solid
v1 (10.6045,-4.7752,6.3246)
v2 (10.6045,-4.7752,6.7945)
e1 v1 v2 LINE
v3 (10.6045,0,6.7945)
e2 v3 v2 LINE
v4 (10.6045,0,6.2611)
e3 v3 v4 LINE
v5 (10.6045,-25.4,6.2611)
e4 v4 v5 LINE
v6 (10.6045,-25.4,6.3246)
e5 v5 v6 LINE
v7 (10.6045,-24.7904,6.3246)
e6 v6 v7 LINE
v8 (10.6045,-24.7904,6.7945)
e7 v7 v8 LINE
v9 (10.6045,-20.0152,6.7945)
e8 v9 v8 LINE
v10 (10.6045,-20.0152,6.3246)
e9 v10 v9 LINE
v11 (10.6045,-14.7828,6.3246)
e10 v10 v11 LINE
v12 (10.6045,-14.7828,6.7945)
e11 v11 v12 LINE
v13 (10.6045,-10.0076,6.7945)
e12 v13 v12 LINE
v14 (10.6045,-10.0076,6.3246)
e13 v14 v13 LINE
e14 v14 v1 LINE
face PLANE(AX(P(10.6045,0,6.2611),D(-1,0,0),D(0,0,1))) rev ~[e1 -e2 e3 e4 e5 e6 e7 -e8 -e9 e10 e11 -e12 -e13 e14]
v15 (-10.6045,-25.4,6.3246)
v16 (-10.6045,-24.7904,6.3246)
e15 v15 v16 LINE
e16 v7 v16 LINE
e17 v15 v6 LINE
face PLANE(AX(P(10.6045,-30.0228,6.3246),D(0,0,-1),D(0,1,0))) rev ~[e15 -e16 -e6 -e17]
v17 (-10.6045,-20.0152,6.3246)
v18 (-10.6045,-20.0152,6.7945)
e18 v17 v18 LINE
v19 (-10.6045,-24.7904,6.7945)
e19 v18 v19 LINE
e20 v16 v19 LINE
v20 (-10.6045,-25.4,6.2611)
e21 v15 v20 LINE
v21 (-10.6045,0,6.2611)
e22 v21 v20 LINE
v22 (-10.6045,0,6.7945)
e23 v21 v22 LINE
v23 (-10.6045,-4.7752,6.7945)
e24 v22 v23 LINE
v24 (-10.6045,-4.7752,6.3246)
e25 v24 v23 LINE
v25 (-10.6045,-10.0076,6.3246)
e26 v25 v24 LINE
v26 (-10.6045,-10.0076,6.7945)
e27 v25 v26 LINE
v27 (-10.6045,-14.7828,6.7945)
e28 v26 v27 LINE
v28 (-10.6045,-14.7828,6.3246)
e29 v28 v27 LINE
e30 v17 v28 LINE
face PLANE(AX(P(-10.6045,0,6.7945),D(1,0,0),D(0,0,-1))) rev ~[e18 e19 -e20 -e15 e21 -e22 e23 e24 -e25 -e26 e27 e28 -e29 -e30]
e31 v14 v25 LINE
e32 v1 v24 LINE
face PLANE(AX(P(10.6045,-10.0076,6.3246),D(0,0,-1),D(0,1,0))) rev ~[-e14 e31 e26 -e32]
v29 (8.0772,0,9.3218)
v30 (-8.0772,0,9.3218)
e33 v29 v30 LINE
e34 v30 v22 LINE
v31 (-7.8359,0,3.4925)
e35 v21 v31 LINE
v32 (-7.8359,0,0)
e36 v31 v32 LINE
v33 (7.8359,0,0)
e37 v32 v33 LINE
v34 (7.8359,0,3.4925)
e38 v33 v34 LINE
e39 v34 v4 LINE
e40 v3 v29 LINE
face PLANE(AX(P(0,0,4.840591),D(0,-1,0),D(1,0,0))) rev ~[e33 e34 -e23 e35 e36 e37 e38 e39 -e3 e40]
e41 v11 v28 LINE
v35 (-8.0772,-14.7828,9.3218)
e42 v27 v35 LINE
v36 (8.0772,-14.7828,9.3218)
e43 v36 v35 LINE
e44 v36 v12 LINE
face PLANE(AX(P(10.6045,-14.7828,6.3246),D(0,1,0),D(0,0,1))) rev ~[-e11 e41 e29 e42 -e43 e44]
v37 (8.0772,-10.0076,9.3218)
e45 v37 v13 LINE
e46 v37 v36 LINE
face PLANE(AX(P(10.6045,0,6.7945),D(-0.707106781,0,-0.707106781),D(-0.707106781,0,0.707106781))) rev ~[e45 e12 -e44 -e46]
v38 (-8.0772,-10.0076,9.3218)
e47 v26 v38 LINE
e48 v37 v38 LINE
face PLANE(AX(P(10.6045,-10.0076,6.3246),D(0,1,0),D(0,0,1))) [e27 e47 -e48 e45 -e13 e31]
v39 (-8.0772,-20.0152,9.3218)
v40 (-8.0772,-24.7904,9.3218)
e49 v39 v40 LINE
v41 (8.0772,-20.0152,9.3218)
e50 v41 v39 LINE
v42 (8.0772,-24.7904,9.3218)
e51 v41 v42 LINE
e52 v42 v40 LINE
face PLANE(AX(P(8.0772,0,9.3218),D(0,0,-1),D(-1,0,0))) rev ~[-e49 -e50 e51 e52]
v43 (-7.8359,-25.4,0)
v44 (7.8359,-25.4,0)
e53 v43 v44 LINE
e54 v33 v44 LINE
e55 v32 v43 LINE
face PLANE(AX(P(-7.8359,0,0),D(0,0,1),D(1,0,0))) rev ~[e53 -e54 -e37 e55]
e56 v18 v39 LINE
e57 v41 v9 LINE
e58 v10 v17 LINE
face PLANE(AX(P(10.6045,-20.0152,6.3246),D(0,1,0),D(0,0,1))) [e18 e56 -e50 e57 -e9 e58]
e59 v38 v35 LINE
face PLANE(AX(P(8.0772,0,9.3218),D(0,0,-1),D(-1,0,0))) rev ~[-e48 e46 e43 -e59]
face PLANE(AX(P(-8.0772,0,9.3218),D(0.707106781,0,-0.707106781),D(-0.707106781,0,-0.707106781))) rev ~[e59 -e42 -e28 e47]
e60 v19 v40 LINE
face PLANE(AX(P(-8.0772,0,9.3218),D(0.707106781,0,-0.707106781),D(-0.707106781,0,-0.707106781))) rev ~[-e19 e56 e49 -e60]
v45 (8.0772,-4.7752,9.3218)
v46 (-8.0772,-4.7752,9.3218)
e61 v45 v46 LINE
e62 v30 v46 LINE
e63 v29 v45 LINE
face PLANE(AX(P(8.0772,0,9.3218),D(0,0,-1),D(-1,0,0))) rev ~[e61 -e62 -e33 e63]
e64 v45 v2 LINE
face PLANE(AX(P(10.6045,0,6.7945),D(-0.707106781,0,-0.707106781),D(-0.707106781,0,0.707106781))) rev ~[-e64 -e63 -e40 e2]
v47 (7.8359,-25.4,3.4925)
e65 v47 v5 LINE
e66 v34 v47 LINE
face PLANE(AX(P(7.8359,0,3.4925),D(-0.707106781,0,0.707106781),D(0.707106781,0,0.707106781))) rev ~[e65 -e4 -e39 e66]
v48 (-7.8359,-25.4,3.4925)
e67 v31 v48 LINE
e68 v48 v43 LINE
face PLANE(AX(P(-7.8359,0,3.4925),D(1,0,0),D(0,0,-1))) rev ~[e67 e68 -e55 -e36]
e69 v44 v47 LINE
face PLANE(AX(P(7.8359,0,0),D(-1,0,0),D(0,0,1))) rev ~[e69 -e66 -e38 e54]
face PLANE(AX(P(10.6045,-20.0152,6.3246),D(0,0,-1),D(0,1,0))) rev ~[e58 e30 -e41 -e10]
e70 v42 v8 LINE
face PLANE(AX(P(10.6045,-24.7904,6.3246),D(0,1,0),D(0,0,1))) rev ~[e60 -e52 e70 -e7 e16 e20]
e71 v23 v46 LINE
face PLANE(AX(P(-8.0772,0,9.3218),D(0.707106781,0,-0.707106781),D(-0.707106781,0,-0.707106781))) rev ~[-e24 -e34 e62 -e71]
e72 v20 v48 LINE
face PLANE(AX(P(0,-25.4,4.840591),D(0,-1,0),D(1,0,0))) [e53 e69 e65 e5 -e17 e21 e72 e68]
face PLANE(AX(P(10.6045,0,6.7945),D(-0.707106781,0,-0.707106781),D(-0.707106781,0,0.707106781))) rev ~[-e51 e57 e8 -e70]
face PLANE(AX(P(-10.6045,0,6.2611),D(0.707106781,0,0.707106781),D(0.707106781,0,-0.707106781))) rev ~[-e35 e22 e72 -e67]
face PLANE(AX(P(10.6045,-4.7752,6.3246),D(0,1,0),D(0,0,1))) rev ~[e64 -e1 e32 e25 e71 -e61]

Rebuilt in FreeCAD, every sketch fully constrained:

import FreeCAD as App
import Part
import Sketcher

V = App.Vector
Q = App.Units.Quantity

doc = App.newDocument("Part")
body = doc.addObject("PartDesign::Body", "Body")

# Sketch on XZ plane
sketch1 = body.newObject("Sketcher::SketchObject", "Sketch")
sketch1.AttachmentSupport = (doc.getObject("XZ_Plane"), [""])
sketch1.MapMode = "FlatFace"
sketch1.addGeometry([
    Part.LineSegment(V(-7.8, 3.5, 0), V(-7.8, 0, 0)),  # 0
    Part.LineSegment(V(-7.8, 0, 0), V(7.8, 0, 0)),  # 1
    Part.LineSegment(V(7.8, 0, 0), V(7.8, 3.5, 0)),  # 2
    Part.LineSegment(V(7.8, 3.5, 0), V(10.6, 6.3, 0)),  # 3
    Part.LineSegment(V(10.6, 6.3, 0), V(10.6, 6.8, 0)),  # 4
    Part.LineSegment(V(10.6, 6.8, 0), V(8.1, 9.3, 0)),  # 5
    Part.LineSegment(V(8.1, 9.3, 0), V(-8.1, 9.3, 0)),  # 6
    Part.LineSegment(V(-8.1, 9.3, 0), V(-10.6, 6.8, 0)),  # 7
    Part.LineSegment(V(-10.6, 6.8, 0), V(-10.6, 6.3, 0)),  # 8
    Part.LineSegment(V(-10.6, 6.3, 0), V(-7.8, 3.5, 0)),  # 9
], False)
sketch1.addConstraint([
    Sketcher.Constraint("Coincident", 0, 2, 1, 1),
    Sketcher.Constraint("Coincident", 1, 2, 2, 1),
    Sketcher.Constraint("Coincident", 2, 2, 3, 1),
    Sketcher.Constraint("Coincident", 3, 2, 4, 1),
    Sketcher.Constraint("Coincident", 4, 2, 5, 1),
    Sketcher.Constraint("Coincident", 5, 2, 6, 1),
    Sketcher.Constraint("Coincident", 6, 2, 7, 1),
    Sketcher.Constraint("Coincident", 7, 2, 8, 1),
    Sketcher.Constraint("Coincident", 8, 2, 9, 1),
    Sketcher.Constraint("Coincident", 9, 2, 0, 1),
    Sketcher.Constraint("Vertical", 0),
    Sketcher.Constraint("Horizontal", 1),
    Sketcher.Constraint("Vertical", 2),
    Sketcher.Constraint("Vertical", 4),
    Sketcher.Constraint("Horizontal", 6),
    Sketcher.Constraint("Vertical", 8),
    Sketcher.Constraint("Symmetric", 0, 2, 1, 2, -1, 1),
    Sketcher.Constraint("Symmetric", 4, 2, 7, 2, -2),
    Sketcher.Constraint("Perpendicular", 3, 5),
    Sketcher.Constraint("Perpendicular", 5, 7),
    Sketcher.Constraint("Perpendicular", 7, 9),
    Sketcher.Constraint("Horizontal", 3, 2, 8, 2),
    Sketcher.Constraint("Horizontal", 2, 2, 9, 2),
    Sketcher.Constraint("DistanceX", 1, 1, 1, 2, Q("0.617 in")),
    Sketcher.Constraint("DistanceX", 6, 2, 6, 1, Q("0.636 in")),
    Sketcher.Constraint("DistanceY", 4, 1, 4, 2, Q("0.021 in")),
    Sketcher.Constraint("DistanceY", 2, 2, 4, 2, Q("0.13 in")),
    Sketcher.Constraint("DistanceY", 0, 2, 0, 1, Q("0.1375 in")),
])
pad1 = body.newObject("PartDesign::Pad", "Pad")
pad1.Profile = sketch1
pad1.Length = Q("1 in")

# Sketch on YZ plane
sketch2 = body.newObject("Sketcher::SketchObject", "Sketch001")
sketch2.AttachmentSupport = (doc.getObject("YZ_Plane"), [""])
sketch2.MapMode = "FlatFace"
sketch2.AttachmentOffset = App.Placement(V(0, 0, 0.4175 * 25.4), App.Rotation())
sketch2.addGeometry([
    Part.LineSegment(V(0, 9.3, 0), V(0, 6.3, 0)),  # 0
    Part.LineSegment(V(0, 6.3, 0), V(5.2, 6.3, 0)),  # 1
    Part.LineSegment(V(5.2, 6.3, 0), V(5.2, 9.3, 0)),  # 2
    Part.LineSegment(V(5.2, 9.3, 0), V(0, 9.3, 0)),  # 3
    Part.LineSegment(V(-10, 9.3, 0), V(-10, 6.3, 0)),  # 4
    Part.LineSegment(V(-10, 6.3, 0), V(-4.8, 6.3, 0)),  # 5
    Part.LineSegment(V(-4.8, 6.3, 0), V(-4.8, 9.3, 0)),  # 6
    Part.LineSegment(V(-4.8, 9.3, 0), V(-10, 9.3, 0)),  # 7
    Part.LineSegment(V(-20, 9.3, 0), V(-20, 6.3, 0)),  # 8
    Part.LineSegment(V(-20, 6.3, 0), V(-14.8, 6.3, 0)),  # 9
    Part.LineSegment(V(-14.8, 6.3, 0), V(-14.8, 9.3, 0)),  # 10
    Part.LineSegment(V(-14.8, 9.3, 0), V(-20, 9.3, 0)),  # 11
    Part.LineSegment(V(-30, 9.3, 0), V(-30, 6.3, 0)),  # 12
    Part.LineSegment(V(-30, 6.3, 0), V(-24.8, 6.3, 0)),  # 13
    Part.LineSegment(V(-24.8, 6.3, 0), V(-24.8, 9.3, 0)),  # 14
    Part.LineSegment(V(-24.8, 9.3, 0), V(-30, 9.3, 0)),  # 15
], False)
sketch2.addConstraint([
    Sketcher.Constraint("Coincident", 0, 2, 1, 1),
    Sketcher.Constraint("Coincident", 1, 2, 2, 1),
    Sketcher.Constraint("Coincident", 2, 2, 3, 1),
    Sketcher.Constraint("Coincident", 3, 2, 0, 1),
    Sketcher.Constraint("Coincident", 4, 2, 5, 1),
    Sketcher.Constraint("Coincident", 5, 2, 6, 1),
    Sketcher.Constraint("Coincident", 6, 2, 7, 1),
    Sketcher.Constraint("Coincident", 7, 2, 4, 1),
    Sketcher.Constraint("Coincident", 8, 2, 9, 1),
    Sketcher.Constraint("Coincident", 9, 2, 10, 1),
    Sketcher.Constraint("Coincident", 10, 2, 11, 1),
    Sketcher.Constraint("Coincident", 11, 2, 8, 1),
    Sketcher.Constraint("Coincident", 12, 2, 13, 1),
    Sketcher.Constraint("Coincident", 13, 2, 14, 1),
    Sketcher.Constraint("Coincident", 14, 2, 15, 1),
    Sketcher.Constraint("Coincident", 15, 2, 12, 1),
    Sketcher.Constraint("Vertical", 0),
    Sketcher.Constraint("Horizontal", 1),
    Sketcher.Constraint("Vertical", 2),
    Sketcher.Constraint("Horizontal", 3),
    Sketcher.Constraint("Vertical", 4),
    Sketcher.Constraint("Horizontal", 5),
    Sketcher.Constraint("Vertical", 6),
    Sketcher.Constraint("Horizontal", 7),
    Sketcher.Constraint("Vertical", 8),
    Sketcher.Constraint("Horizontal", 9),
    Sketcher.Constraint("Vertical", 10),
    Sketcher.Constraint("Horizontal", 11),
    Sketcher.Constraint("Vertical", 12),
    Sketcher.Constraint("Horizontal", 13),
    Sketcher.Constraint("Vertical", 14),
    Sketcher.Constraint("Horizontal", 15),
    Sketcher.Constraint("PointOnObject", 0, 2, -2),
    Sketcher.Constraint("Horizontal", 1, 2, 4, 2),
    Sketcher.Constraint("Horizontal", 3, 2, 6, 2),
    Sketcher.Constraint("Horizontal", 5, 2, 8, 2),
    Sketcher.Constraint("Horizontal", 7, 2, 10, 2),
    Sketcher.Constraint("Horizontal", 9, 2, 12, 2),
    Sketcher.Constraint("Horizontal", 11, 2, 14, 2),
    Sketcher.Constraint("Equal", 3, 5),
    Sketcher.Constraint("Equal", 7, 9),
    Sketcher.Constraint("Equal", 11, 13),
    Sketcher.Constraint("DistanceX", 4, 2, 1, 2, Q("0.6 in")),
    Sketcher.Constraint("DistanceX", 8, 2, 5, 2, Q("0.6 in")),
    Sketcher.Constraint("DistanceX", 12, 2, 9, 2, Q("0.6 in")),
    Sketcher.Constraint("DistanceX", 1, 1, 1, 2, Q("0.206 in")),
    Sketcher.Constraint("DistanceY", 0, 2, 0, 1, Q("0.118 in")),
    Sketcher.Constraint("DistanceY", -1, 1, 0, 2, Q("0.249 in")),
])
pocket1 = body.newObject("PartDesign::Pocket", "Pocket")
pocket1.Profile = sketch2
pocket1.Type = "ThroughAll"

doc.recompute()
